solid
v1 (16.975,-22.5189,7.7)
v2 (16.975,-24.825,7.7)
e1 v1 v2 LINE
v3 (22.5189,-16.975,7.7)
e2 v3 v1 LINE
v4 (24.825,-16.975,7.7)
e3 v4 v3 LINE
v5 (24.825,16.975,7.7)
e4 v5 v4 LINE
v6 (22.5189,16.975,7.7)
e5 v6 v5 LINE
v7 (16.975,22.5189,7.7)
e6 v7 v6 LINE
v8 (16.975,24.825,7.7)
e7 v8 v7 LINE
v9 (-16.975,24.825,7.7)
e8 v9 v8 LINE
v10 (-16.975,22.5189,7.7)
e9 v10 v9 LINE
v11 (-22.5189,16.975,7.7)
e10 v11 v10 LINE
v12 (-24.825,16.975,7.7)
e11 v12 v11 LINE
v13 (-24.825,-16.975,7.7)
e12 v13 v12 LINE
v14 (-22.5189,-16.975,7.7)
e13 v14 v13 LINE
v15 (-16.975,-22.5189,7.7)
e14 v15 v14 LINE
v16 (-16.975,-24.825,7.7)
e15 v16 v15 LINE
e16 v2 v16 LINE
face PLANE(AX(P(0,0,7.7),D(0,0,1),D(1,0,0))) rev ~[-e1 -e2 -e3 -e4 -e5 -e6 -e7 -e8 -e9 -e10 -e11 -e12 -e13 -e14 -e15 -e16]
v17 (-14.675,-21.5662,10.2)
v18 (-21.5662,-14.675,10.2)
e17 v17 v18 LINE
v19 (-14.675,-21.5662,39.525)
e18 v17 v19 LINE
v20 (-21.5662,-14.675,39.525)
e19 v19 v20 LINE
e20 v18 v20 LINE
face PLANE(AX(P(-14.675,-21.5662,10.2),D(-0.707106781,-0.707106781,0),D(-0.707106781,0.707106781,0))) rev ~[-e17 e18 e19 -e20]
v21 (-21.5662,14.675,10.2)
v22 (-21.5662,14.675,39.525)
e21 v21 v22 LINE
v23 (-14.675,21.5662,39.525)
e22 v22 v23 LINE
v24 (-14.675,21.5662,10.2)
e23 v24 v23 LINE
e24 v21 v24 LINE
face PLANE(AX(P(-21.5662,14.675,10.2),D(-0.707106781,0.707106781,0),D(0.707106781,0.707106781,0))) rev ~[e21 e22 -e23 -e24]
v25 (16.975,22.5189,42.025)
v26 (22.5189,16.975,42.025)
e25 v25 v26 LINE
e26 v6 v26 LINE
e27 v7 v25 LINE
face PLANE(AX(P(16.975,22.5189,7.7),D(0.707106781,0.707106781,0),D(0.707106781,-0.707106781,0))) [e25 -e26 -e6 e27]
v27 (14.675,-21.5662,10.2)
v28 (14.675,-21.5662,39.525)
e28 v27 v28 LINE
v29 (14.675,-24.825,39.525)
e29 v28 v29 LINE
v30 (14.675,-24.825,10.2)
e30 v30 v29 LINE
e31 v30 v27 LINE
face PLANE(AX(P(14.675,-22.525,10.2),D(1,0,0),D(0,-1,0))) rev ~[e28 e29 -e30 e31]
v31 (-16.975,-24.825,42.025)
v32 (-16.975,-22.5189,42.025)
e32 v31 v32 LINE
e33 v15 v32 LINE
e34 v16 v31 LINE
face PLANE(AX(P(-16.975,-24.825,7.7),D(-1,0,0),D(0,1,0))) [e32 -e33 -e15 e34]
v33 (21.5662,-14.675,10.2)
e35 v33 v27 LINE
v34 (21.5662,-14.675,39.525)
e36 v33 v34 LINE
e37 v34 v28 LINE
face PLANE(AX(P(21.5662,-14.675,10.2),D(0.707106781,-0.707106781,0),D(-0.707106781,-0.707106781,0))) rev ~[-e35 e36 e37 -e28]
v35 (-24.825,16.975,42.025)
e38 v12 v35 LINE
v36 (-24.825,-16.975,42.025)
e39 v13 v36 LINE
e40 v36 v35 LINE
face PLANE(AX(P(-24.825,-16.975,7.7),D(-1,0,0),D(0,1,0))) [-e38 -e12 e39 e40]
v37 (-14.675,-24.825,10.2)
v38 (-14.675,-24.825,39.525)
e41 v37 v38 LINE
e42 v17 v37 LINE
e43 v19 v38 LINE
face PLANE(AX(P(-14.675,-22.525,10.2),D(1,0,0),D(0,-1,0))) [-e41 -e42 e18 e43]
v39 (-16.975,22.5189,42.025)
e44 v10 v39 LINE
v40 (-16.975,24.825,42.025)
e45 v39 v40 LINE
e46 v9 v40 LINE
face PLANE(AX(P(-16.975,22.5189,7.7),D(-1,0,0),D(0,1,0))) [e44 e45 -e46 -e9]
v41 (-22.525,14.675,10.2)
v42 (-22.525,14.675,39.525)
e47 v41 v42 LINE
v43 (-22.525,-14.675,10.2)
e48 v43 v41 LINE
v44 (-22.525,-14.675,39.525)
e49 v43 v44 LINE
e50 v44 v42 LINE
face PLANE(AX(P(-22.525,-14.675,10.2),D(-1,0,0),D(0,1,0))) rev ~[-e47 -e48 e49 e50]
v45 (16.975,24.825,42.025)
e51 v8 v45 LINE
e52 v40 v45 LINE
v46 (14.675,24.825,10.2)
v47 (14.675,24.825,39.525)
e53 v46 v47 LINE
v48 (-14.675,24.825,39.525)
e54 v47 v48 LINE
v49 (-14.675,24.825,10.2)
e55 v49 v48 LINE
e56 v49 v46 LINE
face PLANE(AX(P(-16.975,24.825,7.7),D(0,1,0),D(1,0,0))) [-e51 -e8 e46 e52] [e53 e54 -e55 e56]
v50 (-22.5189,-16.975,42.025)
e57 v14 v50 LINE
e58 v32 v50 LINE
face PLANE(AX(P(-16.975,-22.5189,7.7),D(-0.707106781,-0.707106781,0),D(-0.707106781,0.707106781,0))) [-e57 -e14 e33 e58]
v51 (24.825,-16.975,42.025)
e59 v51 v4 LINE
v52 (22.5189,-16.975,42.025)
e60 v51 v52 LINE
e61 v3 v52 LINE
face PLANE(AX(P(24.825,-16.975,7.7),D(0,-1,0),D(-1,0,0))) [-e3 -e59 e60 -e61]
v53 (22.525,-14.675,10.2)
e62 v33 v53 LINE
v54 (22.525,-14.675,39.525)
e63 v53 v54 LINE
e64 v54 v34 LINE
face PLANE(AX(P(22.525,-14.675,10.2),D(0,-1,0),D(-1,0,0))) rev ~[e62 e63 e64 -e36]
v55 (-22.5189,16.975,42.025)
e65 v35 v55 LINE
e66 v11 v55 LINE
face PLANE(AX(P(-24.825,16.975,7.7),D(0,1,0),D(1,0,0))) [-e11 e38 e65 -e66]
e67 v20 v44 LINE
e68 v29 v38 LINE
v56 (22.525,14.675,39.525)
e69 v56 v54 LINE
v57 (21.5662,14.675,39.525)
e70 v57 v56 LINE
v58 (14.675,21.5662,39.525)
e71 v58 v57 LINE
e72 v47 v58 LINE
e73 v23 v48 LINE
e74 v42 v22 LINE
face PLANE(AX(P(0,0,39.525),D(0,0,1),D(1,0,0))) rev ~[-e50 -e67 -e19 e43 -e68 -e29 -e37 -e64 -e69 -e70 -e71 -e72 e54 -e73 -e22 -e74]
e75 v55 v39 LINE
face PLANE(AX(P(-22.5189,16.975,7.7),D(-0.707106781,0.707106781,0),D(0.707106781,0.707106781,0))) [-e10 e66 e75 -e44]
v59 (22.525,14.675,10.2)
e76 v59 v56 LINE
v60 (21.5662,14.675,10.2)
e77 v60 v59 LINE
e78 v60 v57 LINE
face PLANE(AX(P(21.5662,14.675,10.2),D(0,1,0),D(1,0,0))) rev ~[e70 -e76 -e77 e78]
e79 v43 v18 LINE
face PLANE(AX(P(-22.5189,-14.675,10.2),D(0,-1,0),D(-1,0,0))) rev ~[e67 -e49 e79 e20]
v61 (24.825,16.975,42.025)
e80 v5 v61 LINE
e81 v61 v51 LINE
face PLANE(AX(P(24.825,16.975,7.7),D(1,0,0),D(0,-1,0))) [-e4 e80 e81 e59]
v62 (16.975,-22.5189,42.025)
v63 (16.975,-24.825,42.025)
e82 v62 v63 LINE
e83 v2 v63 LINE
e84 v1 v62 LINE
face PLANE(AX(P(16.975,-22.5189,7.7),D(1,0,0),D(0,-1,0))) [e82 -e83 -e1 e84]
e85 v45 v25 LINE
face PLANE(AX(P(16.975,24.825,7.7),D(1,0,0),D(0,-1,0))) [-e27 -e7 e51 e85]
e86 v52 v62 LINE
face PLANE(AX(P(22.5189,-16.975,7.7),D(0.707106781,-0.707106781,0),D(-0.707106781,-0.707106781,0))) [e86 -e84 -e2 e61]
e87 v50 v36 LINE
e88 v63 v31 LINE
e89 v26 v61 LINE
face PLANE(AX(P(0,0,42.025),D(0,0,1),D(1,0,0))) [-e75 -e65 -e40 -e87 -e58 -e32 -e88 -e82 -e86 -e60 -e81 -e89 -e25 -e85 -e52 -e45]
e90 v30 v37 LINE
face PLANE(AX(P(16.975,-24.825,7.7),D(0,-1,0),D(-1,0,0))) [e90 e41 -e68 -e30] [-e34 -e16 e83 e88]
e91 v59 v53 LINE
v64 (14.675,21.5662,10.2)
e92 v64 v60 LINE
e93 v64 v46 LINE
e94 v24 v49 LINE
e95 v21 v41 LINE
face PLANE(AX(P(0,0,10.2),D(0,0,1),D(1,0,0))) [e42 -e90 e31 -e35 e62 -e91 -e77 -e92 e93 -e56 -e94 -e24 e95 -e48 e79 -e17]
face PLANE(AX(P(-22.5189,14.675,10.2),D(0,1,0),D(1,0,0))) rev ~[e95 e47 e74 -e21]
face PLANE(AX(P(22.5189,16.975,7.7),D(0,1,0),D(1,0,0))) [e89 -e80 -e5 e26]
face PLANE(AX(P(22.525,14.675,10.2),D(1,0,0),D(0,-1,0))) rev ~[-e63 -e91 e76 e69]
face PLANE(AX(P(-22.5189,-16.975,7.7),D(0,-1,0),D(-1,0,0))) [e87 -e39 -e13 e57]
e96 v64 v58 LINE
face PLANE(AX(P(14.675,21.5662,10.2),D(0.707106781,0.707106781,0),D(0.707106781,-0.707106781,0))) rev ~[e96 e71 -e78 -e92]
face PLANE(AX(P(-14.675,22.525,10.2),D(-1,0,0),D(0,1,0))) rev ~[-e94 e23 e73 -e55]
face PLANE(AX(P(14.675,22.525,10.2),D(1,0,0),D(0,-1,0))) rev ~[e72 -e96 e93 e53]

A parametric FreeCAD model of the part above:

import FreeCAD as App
import Part
import Sketcher

V = App.Vector


def add_polygon(sketch, points):
    """Adds a closed chain of lines whose ends are joined by coincident constraints."""
    first, n = sketch.GeometryCount, len(points)
    for a, b in zip(points, points[1:] + points[:1]):
        sketch.addGeometry(Part.LineSegment(App.Vector(*a, 0), App.Vector(*b, 0)), False)
    for i in range(n):
        sketch.addConstraint(Sketcher.Constraint("Coincident", first + i, 2, first + (i + 1) % n, 1))

doc = App.newDocument("Part")
body = doc.addObject("PartDesign::Body", "Body")

sketch1 = body.newObject("Sketcher::SketchObject", "Sketch")
sketch1.AttachmentSupport = (doc.getObject("XY_Plane"), [""])
sketch1.MapMode = "FlatFace"
sketch1.AttachmentOffset = App.Placement(V(0, 0, 7.7), App.Rotation())
add_polygon(sketch1, [(24.8, -17), (24.8, 17), (22.5, 17), (17, 22.5), (17, 24.8), (-17, 24.8), (-17, 22.5), (-22.5, 17), (-24.8, 17), (-24.8, -17), (-22.5, -17), (-17, -22.5), (-17, -24.8), (17, -24.8), (17, -22.5), (22.5, -17)])
sketch1.addConstraint(Sketcher.Constraint("Vertical", 0))
sketch1.addConstraint(Sketcher.Constraint("Horizontal", 1))
sketch1.addConstraint(Sketcher.Constraint("Vertical", 3))
sketch1.addConstraint(Sketcher.Constraint("Horizontal", 4))
sketch1.addConstraint(Sketcher.Constraint("Vertical", 5))
sketch1.addConstraint(Sketcher.Constraint("Horizontal", 7))
sketch1.addConstraint(Sketcher.Constraint("Vertical", 8))
sketch1.addConstraint(Sketcher.Constraint("Horizontal", 9))
sketch1.addConstraint(Sketcher.Constraint("Vertical", 11))
sketch1.addConstraint(Sketcher.Constraint("Horizontal", 12))
sketch1.addConstraint(Sketcher.Constraint("Vertical", 13))
sketch1.addConstraint(Sketcher.Constraint("Horizontal", 15))
sketch1.addConstraint(Sketcher.Constraint("Symmetric", 0, 2, 8, 2, -1, 1))
sketch1.addConstraint(Sketcher.Constraint("Symmetric", 2, 2, 10, 2, -1, 1))
sketch1.addConstraint(Sketcher.Constraint("Symmetric", 4, 2, 12, 2, -1, 1))
sketch1.addConstraint(Sketcher.Constraint("Symmetric", 6, 2, 14, 2, -1, 1))
sketch1.addConstraint(Sketcher.Constraint("Symmetric", 2, 2, 5, 2, -2))
sketch1.addConstraint(Sketcher.Constraint("Symmetric", 1, 2, 6, 2, -2))
sketch1.addConstraint(Sketcher.Constraint("Perpendicular", 2, 6))
sketch1.addConstraint(Sketcher.Constraint("Perpendicular", 6, 10))
sketch1.addConstraint(Sketcher.Constraint("Perpendicular", 10, 14))
sketch1.addConstraint(Sketcher.Constraint("Equal", 12, 0))
sketch1.addConstraint(Sketcher.Constraint("Equal", 15, 3))
sketch1.addConstraint(Sketcher.Constraint("DistanceX", 4, 2, 4, 1, 33.95))
sketch1.addConstraint(Sketcher.Constraint("DistanceX", 4, 2, 0, 2, 41.8))
sketch1.addConstraint(Sketcher.Constraint("DistanceX", 1, 2, 1, 1, 2.306))
pad1 = body.newObject("PartDesign::Pad", "Pad")
pad1.Profile = sketch1
pad1.Length = 2.5

sketch2 = body.newObject("Sketcher::SketchObject", "Sketch001")
sketch2.AttachmentSupport = (doc.getObject("XY_Plane"), [""])
sketch2.MapMode = "FlatFace"
sketch2.AttachmentOffset = App.Placement(V(0, 0, 10.2), App.Rotation())
add_polygon(sketch2, [(21.6, 14.7), (22.5, 14.7), (22.5, -14.7), (21.6, -14.7), (14.7, -21.6), (14.7, -24.8), (17, -24.8), (17, -22.5), (22.5, -17), (24.8, -17), (24.8, 17), (22.5, 17), (17, 22.5), (17, 24.8), (14.7, 24.8), (14.7, 21.6)])
add_polygon(sketch2, [(-14.7, 24.8), (-17, 24.8), (-17, 22.5), (-22.5, 17), (-24.8, 17), (-24.8, -17), (-22.5, -17), (-17, -22.5), (-17, -24.8), (-14.7, -24.8), (-14.7, -21.6), (-21.6, -14.7), (-22.5, -14.7), (-22.5, 14.7), (-21.6, 14.7), (-14.7, 21.6)])
sketch2.addConstraint(Sketcher.Constraint("Horizontal", 0))
sketch2.addConstraint(Sketcher.Constraint("Vertical", 1))
sketch2.addConstraint(Sketcher.Constraint("Horizontal", 2))
sketch2.addConstraint(Sketcher.Constraint("Vertical", 4))
sketch2.addConstraint(Sketcher.Constraint("Horizontal", 5))
sketch2.addConstraint(Sketcher.Constraint("Vertical", 6))
sketch2.addConstraint(Sketcher.Constraint("Horizontal", 8))
sketch2.addConstraint(Sketcher.Constraint("Vertical", 9))
sketch2.addConstraint(Sketcher.Constraint("Horizontal", 10))
sketch2.addConstraint(Sketcher.Constraint("Vertical", 12))
sketch2.addConstraint(Sketcher.Constraint("Horizontal", 13))
sketch2.addConstraint(Sketcher.Constraint("Vertical", 14))
sketch2.addConstraint(Sketcher.Constraint("Horizontal", 16))
sketch2.addConstraint(Sketcher.Constraint("Vertical", 17))
sketch2.addConstraint(Sketcher.Constraint("Horizontal", 19))
sketch2.addConstraint(Sketcher.Constraint("Vertical", 20))
sketch2.addConstraint(Sketcher.Constraint("Horizontal", 21))
sketch2.addConstraint(Sketcher.Constraint("Vertical", 23))
sketch2.addConstraint(Sketcher.Constraint("Horizontal", 24))
sketch2.addConstraint(Sketcher.Constraint("Vertical", 25))
sketch2.addConstraint(Sketcher.Constraint("Horizontal", 27))
sketch2.addConstraint(Sketcher.Constraint("Vertical", 28))
sketch2.addConstraint(Sketcher.Constraint("Horizontal", 29))
sketch2.addConstraint(Sketcher.Constraint("Vertical", 31))
sketch2.addConstraint(Sketcher.Constraint("Symmetric", 5, 2, 16, 2, -1, 1))
sketch2.addConstraint(Sketcher.Constraint("Symmetric", 7, 2, 18, 2, -1, 1))
sketch2.addConstraint(Sketcher.Constraint("Symmetric", 9, 2, 20, 2, -1, 1))
sketch2.addConstraint(Sketcher.Constraint("Symmetric", 11, 2, 22, 2, -1, 1))
sketch2.addConstraint(Sketcher.Constraint("Symmetric", 13, 2, 24, 2, -1, 1))
sketch2.addConstraint(Sketcher.Constraint("Symmetric", 15, 2, 26, 2, -1, 1))
sketch2.addConstraint(Sketcher.Constraint("Symmetric", 1, 2, 28, 2, -1, 1))
sketch2.addConstraint(Sketcher.Constraint("Symmetric", 3, 2, 30, 2, -1, 1))
sketch2.addConstraint(Sketcher.Constraint("Symmetric", 12, 2, 16, 2, -2))
sketch2.addConstraint(Sketcher.Constraint("Symmetric", 10, 2, 18, 2, -2))
sketch2.addConstraint(Sketcher.Constraint("Symmetric", 3, 2, 25, 2, -2))
sketch2.addConstraint(Sketcher.Constraint("Symmetric", 2, 2, 26, 2, -2))
sketch2.addConstraint(Sketcher.Constraint("Parallel", 3, 7))
sketch2.addConstraint(Sketcher.Constraint("Perpendicular", 7, 11))
sketch2.addConstraint(Sketcher.Constraint("Parallel", 11, 15))
sketch2.addConstraint(Sketcher.Constraint("Perpendicular", 15, 18))
sketch2.addConstraint(Sketcher.Constraint("Perpendicular", 18, 22))
sketch2.addConstraint(Sketcher.Constraint("Parallel", 22, 26))
sketch2.addConstraint(Sketcher.Constraint("Perpendicular", 26, 30))
sketch2.addConstraint(Sketcher.Constraint("Equal", 21, 6))
sketch2.addConstraint(Sketcher.Constraint("DistanceX", 5, 1, 5, 2, 2.3))
sketch2.addConstraint(Sketcher.Constraint("DistanceY", 7, 2, 1, 2, 2.3))
sketch2.addConstraint(Sketcher.Constraint("DistanceX", 1, 2, 8, 2, 2.3))
sketch2.addConstraint(Sketcher.Constraint("DistanceY", 1, 2, 1, 1, 29.35))
sketch2.addConstraint(Sketcher.Constraint("DistanceY", 4, 2, 0, 2, 39.5))
sketch2.addConstraint(Sketcher.Constraint("DistanceX", 19, 2, 14, 2, 39.5))
sketch2.addConstraint(Sketcher.Constraint("DistanceX", 8, 1, 8, 2, 2.306))
sketch2.addConstraint(Sketcher.Constraint("DistanceX", 0, 1, 0, 2, 0.9588))
pad2 = body.newObject("PartDesign::Pad", "Pad001")
pad2.Profile = sketch2
pad2.Length = 31.825

sketch3 = body.newObject("Sketcher::SketchObject", "Sketch002")
sketch3.AttachmentSupport = (doc.getObject("XY_Plane"), [""])
sketch3.MapMode = "FlatFace"
sketch3.AttachmentOffset = App.Placement(V(0, 0, 42.025), App.Rotation())
add_polygon(sketch3, [(17, 24.8), (-17, 24.8), (-17, 22.5), (-22.5, 17), (-24.8, 17), (-24.8, -17), (-22.5, -17), (-17, -22.5), (-17, -24.8), (17, -24.8), (17, -22.5), (22.5, -17), (24.8, -17), (24.8, 17), (22.5, 17), (17, 22.5)])
sketch3.addConstraint(Sketcher.Constraint("Horizontal", 0))
sketch3.addConstraint(Sketcher.Constraint("Vertical", 1))
sketch3.addConstraint(Sketcher.Constraint("Horizontal", 3))
sketch3.addConstraint(Sketcher.Constraint("Vertical", 4))
sketch3.addConstraint(Sketcher.Constraint("Horizontal", 5))
sketch3.addConstraint(Sketcher.Constraint("Vertical", 7))
sketch3.addConstraint(Sketcher.Constraint("Horizontal", 8))
sketch3.addConstraint(Sketcher.Constraint("Vertical", 9))
sketch3.addConstraint(Sketcher.Constraint("Horizontal", 11))
sketch3.addConstraint(Sketcher.Constraint("Vertical", 12))
sketch3.addConstraint(Sketcher.Constraint("Horizontal", 13))
sketch3.addConstraint(Sketcher.Constraint("Vertical", 15))
sketch3.addConstraint(Sketcher.Constraint("Symmetric", 0, 2, 8, 2, -1, 1))
sketch3.addConstraint(Sketcher.Constraint("Symmetric", 2, 2, 10, 2, -1, 1))
sketch3.addConstraint(Sketcher.Constraint("Symmetric", 4, 2, 12, 2, -1, 1))
sketch3.addConstraint(Sketcher.Constraint("Symmetric", 6, 2, 14, 2, -1, 1))
sketch3.addConstraint(Sketcher.Constraint("Symmetric", 6, 2, 9, 2, -2))
sketch3.addConstraint(Sketcher.Constraint("Symmetric", 5, 2, 10, 2, -2))
sketch3.addConstraint(Sketcher.Constraint("Perpendicular", 2, 6))
sketch3.addConstraint(Sketcher.Constraint("Perpendicular", 6, 10))
sketch3.addConstraint(Sketcher.Constraint("Perpendicular", 10, 14))
sketch3.addConstraint(Sketcher.Constraint("Equal", 13, 1))
sketch3.addConstraint(Sketcher.Constraint("Equal", 8, 4))
sketch3.addConstraint(Sketcher.Constraint("DistanceX", 0, 2, 0, 1, 33.95))
sketch3.addConstraint(Sketcher.Constraint("DistanceY", 4, 2, 0, 2, 41.8))
sketch3.addConstraint(Sketcher.Constraint("DistanceX", 3, 2, 3, 1, 2.306))
pad3 = body.newObject("PartDesign::Pad", "Pad002")
pad3.Profile = sketch3
pad3.Length = 2.5
pad3.Reversed = True

doc.recompute()
